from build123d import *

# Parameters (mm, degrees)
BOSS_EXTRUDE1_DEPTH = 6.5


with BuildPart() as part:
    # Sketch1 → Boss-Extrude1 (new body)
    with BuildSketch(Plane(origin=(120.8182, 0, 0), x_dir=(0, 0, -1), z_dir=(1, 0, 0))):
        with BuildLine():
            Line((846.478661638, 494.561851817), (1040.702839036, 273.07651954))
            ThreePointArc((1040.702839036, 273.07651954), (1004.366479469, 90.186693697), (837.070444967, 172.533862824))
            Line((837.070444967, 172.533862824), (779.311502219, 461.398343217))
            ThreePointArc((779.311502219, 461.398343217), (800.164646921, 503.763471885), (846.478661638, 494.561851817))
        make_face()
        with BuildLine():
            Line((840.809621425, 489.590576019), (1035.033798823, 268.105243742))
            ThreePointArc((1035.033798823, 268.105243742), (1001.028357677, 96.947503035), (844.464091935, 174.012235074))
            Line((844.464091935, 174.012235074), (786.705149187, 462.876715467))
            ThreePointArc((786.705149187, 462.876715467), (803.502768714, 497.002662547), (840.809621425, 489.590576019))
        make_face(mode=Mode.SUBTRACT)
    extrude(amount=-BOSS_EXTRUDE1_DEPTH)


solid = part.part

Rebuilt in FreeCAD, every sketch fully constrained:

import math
import FreeCAD as App
import Part
import Sketcher

doc = App.newDocument("Part")
params = doc.addObject("Spreadsheet::Sheet", "Params")
for row, (alias, value) in enumerate([
    ("sketch1_radius", "110 mm"),
    ("sketch1_radius2", "38.77 mm"),
    ("sketch1_radius3", "117.54 mm"),
    ("pad1_length", "6.5 mm"),
], start=1):
    params.set(f"A{row}", alias)
    params.set(f"B{row}", "=" + value)
    params.setAlias(f"B{row}", alias)

body = doc.addObject("PartDesign::Body", "Body")

# Sketch on YZ plane
sketch1 = doc.addObject("Sketcher::SketchObject", "Sketch")
body.addObject(sketch1)
sketch1.AttachmentSupport = (doc.YZ_Plane, [""])
sketch1.MapMode = "FlatFace"
sketch1.AttachmentOffset = App.Placement(App.Vector(0, 0, 120.8182), App.Rotation())
sketch1.addGeometry([
    Part.LineSegment(App.Vector(273, -1041, 0), App.Vector(495, -846, 0)),  # 0
    Part.ArcOfCircle(Part.Circle(App.Vector(469, -817, 0), App.Vector(0, 0, 1), 39), math.radians(-49), math.radians(101)),  # 1
    Part.LineSegment(App.Vector(461, -779, 0), App.Vector(173, -837, 0)),  # 2
    Part.ArcOfCircle(Part.Circle(App.Vector(196, -952, 0), App.Vector(0, 0, 1), 118), math.radians(101), math.radians(311)),  # 3
    Part.LineSegment(App.Vector(490, -841, 0), App.Vector(268, -1035, 0)),  # 4
    Part.ArcOfCircle(Part.Circle(App.Vector(196, -952, 0), App.Vector(0, 0, 1), 110), math.radians(101), math.radians(311)),  # 5
    Part.LineSegment(App.Vector(174, -844, 0), App.Vector(463, -787, 0)),  # 6
    Part.ArcOfCircle(Part.Circle(App.Vector(469, -817, 0), App.Vector(0, 0, 1), 31), math.radians(-49), math.radians(101)),  # 7
], False)
sketch1.addConstraint([
    Sketcher.Constraint("Tangent", 0, 2, 1, 1),
    Sketcher.Constraint("Tangent", 1, 2, 2, 1),
    Sketcher.Constraint("Tangent", 2, 2, 3, 1),
    Sketcher.Constraint("Tangent", 3, 2, 0, 1),
    Sketcher.Constraint("Tangent", 4, 2, 5, 2),
    Sketcher.Constraint("Tangent", 5, 1, 6, 1),
    Sketcher.Constraint("Tangent", 6, 2, 7, 2),
    Sketcher.Constraint("Tangent", 7, 1, 4, 1),
    Sketcher.Constraint("Coincident", 5, 3, 3, 3),
    Sketcher.Constraint("Coincident", 7, 3, 1, 3),
    Sketcher.Constraint("Parallel", 0, 4),
    Sketcher.Constraint("Radius", 5, 110.0),
    Sketcher.Constraint("Radius", 1, 38.77),
    Sketcher.Constraint("Radius", 3, 117.54),
    Sketcher.Constraint("DistanceX", -1, 1, 1, 3, 469.0),
    Sketcher.Constraint("DistanceY", 3, 3, 1, 3, 135.0),
    Sketcher.Constraint("DistanceX", -1, 1, 3, 3, 195.58),
    Sketcher.Constraint("DistanceY", 4, 2, -1, 1, 1035.033799),
])
sketch1.setExpression("Constraints[11]", "Params.sketch1_radius")
sketch1.setExpression("Constraints[12]", "Params.sketch1_radius2")
sketch1.setExpression("Constraints[13]", "Params.sketch1_radius3")
pad1 = doc.addObject("PartDesign::Pad", "Pad")
body.addObject(pad1)
pad1.Profile = sketch1
pad1.setExpression("Length", "Params.pad1_length")
pad1.Reversed = True

doc.recompute()
